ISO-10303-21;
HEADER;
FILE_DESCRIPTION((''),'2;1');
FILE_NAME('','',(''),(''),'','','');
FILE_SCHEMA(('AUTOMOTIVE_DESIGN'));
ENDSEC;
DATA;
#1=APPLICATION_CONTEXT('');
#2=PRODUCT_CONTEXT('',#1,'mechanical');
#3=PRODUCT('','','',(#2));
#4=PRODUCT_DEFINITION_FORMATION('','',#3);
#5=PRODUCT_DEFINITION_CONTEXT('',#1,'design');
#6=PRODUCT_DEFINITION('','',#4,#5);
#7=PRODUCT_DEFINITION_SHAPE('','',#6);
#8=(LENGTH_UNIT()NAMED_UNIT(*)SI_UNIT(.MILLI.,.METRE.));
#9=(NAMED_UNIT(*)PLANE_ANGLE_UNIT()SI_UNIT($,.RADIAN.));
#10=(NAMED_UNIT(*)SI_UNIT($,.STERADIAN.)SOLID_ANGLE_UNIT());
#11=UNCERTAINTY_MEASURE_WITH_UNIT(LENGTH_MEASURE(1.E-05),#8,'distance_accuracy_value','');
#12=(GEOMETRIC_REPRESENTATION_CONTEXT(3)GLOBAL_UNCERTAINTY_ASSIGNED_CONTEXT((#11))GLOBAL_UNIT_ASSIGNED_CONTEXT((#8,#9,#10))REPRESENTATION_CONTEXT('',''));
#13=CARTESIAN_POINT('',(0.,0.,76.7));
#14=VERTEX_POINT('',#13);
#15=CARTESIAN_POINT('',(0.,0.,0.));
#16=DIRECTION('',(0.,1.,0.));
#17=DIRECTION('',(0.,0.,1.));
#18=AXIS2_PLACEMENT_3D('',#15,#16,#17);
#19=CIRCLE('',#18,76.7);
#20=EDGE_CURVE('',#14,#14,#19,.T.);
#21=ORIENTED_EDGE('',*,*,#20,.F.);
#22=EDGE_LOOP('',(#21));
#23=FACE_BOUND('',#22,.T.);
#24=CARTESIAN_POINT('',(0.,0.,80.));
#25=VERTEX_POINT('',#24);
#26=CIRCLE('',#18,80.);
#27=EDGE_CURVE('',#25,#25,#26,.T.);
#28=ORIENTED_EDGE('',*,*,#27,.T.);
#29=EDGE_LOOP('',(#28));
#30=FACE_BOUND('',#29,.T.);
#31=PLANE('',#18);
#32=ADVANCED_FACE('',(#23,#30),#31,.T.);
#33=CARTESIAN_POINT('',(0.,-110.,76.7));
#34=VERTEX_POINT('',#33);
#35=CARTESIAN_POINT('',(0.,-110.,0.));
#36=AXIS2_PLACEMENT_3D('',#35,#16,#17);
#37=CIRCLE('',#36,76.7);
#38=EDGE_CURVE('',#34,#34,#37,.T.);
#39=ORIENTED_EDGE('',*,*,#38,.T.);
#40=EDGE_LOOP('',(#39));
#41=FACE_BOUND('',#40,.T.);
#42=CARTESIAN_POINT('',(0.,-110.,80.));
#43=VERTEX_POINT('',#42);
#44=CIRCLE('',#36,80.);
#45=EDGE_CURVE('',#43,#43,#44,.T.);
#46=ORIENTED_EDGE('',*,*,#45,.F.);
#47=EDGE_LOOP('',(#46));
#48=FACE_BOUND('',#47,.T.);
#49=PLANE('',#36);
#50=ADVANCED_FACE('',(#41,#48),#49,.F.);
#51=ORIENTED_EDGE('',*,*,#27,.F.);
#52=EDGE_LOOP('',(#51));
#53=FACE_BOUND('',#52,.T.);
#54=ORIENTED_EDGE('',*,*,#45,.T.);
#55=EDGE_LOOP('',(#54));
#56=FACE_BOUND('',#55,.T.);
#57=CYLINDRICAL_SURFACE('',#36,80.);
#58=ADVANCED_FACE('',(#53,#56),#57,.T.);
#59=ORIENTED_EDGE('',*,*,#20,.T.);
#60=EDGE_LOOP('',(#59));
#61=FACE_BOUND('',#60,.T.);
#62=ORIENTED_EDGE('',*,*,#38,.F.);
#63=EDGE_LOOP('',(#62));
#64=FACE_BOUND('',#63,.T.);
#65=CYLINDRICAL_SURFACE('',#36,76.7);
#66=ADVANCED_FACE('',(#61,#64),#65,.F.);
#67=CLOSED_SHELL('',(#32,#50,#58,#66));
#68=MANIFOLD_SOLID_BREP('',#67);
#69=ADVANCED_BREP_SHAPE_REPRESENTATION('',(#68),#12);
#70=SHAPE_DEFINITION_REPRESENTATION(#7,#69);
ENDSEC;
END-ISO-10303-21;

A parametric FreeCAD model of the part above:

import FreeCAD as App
import Part
import Sketcher

doc = App.newDocument("Part")
params = doc.addObject("Spreadsheet::Sheet", "Params")
for row, (alias, value) in enumerate([
    ("sketch1_diameter", "160 mm"),
    ("sketch1_diameter2", "153.4 mm"),
    ("pad1_length", "110 mm"),
], start=1):
    params.set(f"A{row}", alias)
    params.set(f"B{row}", "=" + value)
    params.setAlias(f"B{row}", alias)

body = doc.addObject("PartDesign::Body", "Body")

# Sketch on XZ plane
sketch1 = doc.addObject("Sketcher::SketchObject", "Sketch")
body.addObject(sketch1)
sketch1.AttachmentSupport = (doc.XZ_Plane, [""])
sketch1.MapMode = "FlatFace"
sketch1.addGeometry([
    Part.Circle(App.Vector(0, 0, 0), App.Vector(0, 0, 1), 80),
    Part.Circle(App.Vector(0, 0, 0), App.Vector(0, 0, 1), 76.7),
], False)
sketch1.addConstraint([
    Sketcher.Constraint("Coincident", 0, 3, -1, 1),
    Sketcher.Constraint("Coincident", 1, 3, -1, 1),
    Sketcher.Constraint("Diameter", 0, 160.0),
    Sketcher.Constraint("Diameter", 1, 153.4),
])
sketch1.setExpression("Constraints[2]", "Params.sketch1_diameter")
sketch1.setExpression("Constraints[3]", "Params.sketch1_diameter2")
pad1 = doc.addObject("PartDesign::Pad", "Pad")
body.addObject(pad1)
pad1.Profile = sketch1
pad1.setExpression("Length", "Params.pad1_length")

doc.recompute()
